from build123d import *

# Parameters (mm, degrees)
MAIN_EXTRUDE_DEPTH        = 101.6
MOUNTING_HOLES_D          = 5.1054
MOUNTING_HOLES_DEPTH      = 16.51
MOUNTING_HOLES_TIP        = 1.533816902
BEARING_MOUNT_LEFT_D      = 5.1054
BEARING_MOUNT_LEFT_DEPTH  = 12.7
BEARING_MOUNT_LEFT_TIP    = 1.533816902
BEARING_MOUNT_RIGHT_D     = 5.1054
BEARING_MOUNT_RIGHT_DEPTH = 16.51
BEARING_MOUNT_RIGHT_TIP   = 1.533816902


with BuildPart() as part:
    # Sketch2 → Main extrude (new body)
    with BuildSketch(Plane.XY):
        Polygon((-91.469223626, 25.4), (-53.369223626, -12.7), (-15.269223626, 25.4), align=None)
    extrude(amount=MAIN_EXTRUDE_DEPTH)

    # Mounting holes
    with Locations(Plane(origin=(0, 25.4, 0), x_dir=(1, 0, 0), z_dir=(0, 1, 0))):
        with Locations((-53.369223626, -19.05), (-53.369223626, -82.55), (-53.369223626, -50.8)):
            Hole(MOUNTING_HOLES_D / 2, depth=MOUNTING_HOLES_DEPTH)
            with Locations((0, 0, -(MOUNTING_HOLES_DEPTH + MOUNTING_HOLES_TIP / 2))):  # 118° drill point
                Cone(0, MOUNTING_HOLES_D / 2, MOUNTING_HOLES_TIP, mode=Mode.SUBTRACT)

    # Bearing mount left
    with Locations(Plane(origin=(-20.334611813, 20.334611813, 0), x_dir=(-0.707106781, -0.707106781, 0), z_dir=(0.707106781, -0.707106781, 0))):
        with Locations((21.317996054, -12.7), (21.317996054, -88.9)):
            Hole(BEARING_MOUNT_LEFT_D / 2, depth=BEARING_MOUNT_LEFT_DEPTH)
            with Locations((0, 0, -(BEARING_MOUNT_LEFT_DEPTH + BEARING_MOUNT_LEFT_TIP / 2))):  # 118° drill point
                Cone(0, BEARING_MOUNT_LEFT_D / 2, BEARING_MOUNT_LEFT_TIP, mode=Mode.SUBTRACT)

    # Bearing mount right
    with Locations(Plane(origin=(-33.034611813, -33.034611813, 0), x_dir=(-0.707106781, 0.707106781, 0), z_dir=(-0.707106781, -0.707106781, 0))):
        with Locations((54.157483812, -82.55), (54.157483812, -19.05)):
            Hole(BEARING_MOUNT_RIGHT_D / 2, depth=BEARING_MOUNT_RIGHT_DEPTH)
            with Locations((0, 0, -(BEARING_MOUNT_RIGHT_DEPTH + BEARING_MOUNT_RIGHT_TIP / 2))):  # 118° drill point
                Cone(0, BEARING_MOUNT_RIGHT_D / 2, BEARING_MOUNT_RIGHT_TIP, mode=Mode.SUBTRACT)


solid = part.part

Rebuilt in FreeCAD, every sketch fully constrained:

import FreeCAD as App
import Part
import Sketcher

V = App.Vector
Q = App.Units.Quantity


def add_polygon(sketch, points):
    """Adds a closed chain of lines whose ends are joined by coincident constraints."""
    first, n = sketch.GeometryCount, len(points)
    for a, b in zip(points, points[1:] + points[:1]):
        sketch.addGeometry(Part.LineSegment(App.Vector(*a, 0), App.Vector(*b, 0)), False)
    for i in range(n):
        sketch.addConstraint(Sketcher.Constraint("Coincident", first + i, 2, first + (i + 1) % n, 1))

doc = App.newDocument("Part")
body = doc.addObject("PartDesign::Body", "Body")

# Sketch on XY plane
sketch1 = body.newObject("Sketcher::SketchObject", "Sketch")
sketch1.AttachmentSupport = (doc.getObject("XY_Plane"), [""])
sketch1.MapMode = "FlatFace"
add_polygon(sketch1, [(-91, 25), (-53, -13), (-15, 25)])  # lines 0-2
sketch1.addConstraint([
    Sketcher.Constraint("Horizontal", 2),
    Sketcher.Constraint("Perpendicular", 0, 1),
    Sketcher.Constraint("Equal", 0, 1),
    Sketcher.Constraint("DistanceX", 2, 2, 2, 1, Q("3 in")),
    Sketcher.Constraint("DistanceY", -1, 1, 1, 2, Q("1 in")),
    Sketcher.Constraint("DistanceX", 0, 2, -1, 1, 53.369224),
])
pad1 = body.newObject("PartDesign::Pad", "Pad")
pad1.Profile = sketch1
pad1.Length = Q("4 in")

# Sketch on XZ plane
sketch2 = body.newObject("Sketcher::SketchObject", "Sketch001")
sketch2.AttachmentSupport = (doc.getObject("XZ_Plane"), [""])
sketch2.MapMode = "FlatFace"
sketch2.AttachmentOffset = App.Placement(V(0, 0, -1 * 25.4), App.Rotation())
sketch2.addGeometry([
    Part.Circle(V(-53.4, 19.1, 0), V(0, 0, 1), 2.6),
    Part.Circle(V(-53.4, 82.5, 0), V(0, 0, 1), 2.6),
    Part.Circle(V(-53.4, 50.8, 0), V(0, 0, 1), 2.6),
], False)
sketch2.addConstraint([
    Sketcher.Constraint("Equal", 0, 1),
    Sketcher.Constraint("Equal", 1, 2),
    Sketcher.Constraint("Vertical", 0, 3, 1, 3),
    Sketcher.Constraint("Vertical", 1, 3, 2, 3),
    Sketcher.Constraint("Diameter", 0, Q("0.201 in")),
    Sketcher.Constraint("DistanceY", -1, 1, 2, 3, Q("2 in")),
    Sketcher.Constraint("DistanceY", 0, 3, 1, 3, Q("2.5 in")),
    Sketcher.Constraint("DistanceY", -1, 1, 0, 3, Q("0.75 in")),
    Sketcher.Constraint("DistanceX", 0, 3, -1, 1, 53.369224),
])
doc.recompute()
hole = body.newObject("PartDesign::Hole", "Hole")
hole.Profile = sketch2
hole.ThreadType = "None"
hole.Diameter = Q("0.201 in")
hole.DepthType = "Dimension"
hole.Depth = Q("0.65 in")
hole.DrillPoint = "Angled"
hole.DrillPointAngle = 118
hole.Reversed = True

# Sketch on an angled plane
sketch3 = body.newObject("Sketcher::SketchObject", "Sketch002")
sketch3.Placement = App.Placement(V(-20.334612, 20.334612, 0), App.Rotation(V(-0.707106781, -0.707106781, 0), V(0, 0, -0.999999999), V(0.707106781, -0.707106781, 0), "ZXY"))
sketch3.addGeometry([
    Part.Circle(V(21.3, -12.7, 0), V(0, 0, 1), 2.6),
    Part.Circle(V(21.3, -88.9, 0), V(0, 0, 1), 2.6),
], False)
sketch3.addConstraint([
    Sketcher.Constraint("Equal", 0, 1),
    Sketcher.Constraint("Vertical", 0, 3, 1, 3),
    Sketcher.Constraint("Diameter", 0, Q("0.201 in")),
    Sketcher.Constraint("DistanceY", 1, 3, 0, 3, Q("3 in")),
    Sketcher.Constraint("DistanceY", 0, 3, -1, 1, Q("0.5 in")),
    Sketcher.Constraint("DistanceX", -1, 1, 0, 3, 21.317996),
])
doc.recompute()
hole2 = body.newObject("PartDesign::Hole", "Hole001")
hole2.Profile = sketch3
hole2.ThreadType = "None"
hole2.Diameter = Q("0.201 in")
hole2.DepthType = "Dimension"
hole2.Depth = Q("0.5 in")
hole2.DrillPoint = "Angled"
hole2.DrillPointAngle = 118

# Sketch on an angled plane
sketch4 = body.newObject("Sketcher::SketchObject", "Sketch003")
sketch4.Placement = App.Placement(V(-33.034612, -33.034612, 0), App.Rotation(V(-0.707106781, 0.707106781, 0), V(0, 0, -0.999999999), V(-0.707106781, -0.707106781, 0), "ZXY"))
sketch4.addGeometry([
    Part.Circle(V(54.2, -82.5, 0), V(0, 0, 1), 2.6),
    Part.Circle(V(54.2, -19, 0), V(0, 0, 1), 2.6),
], False)
sketch4.addConstraint([
    Sketcher.Constraint("Equal", 0, 1),
    Sketcher.Constraint("Vertical", 0, 3, 1, 3),
    Sketcher.Constraint("Diameter", 0, Q("0.201 in")),
    Sketcher.Constraint("DistanceY", 0, 3, 1, 3, Q("2.5 in")),
    Sketcher.Constraint("DistanceY", 0, 3, -1, 1, Q("3.25 in")),
    Sketcher.Constraint("DistanceX", -1, 1, 0, 3, 54.157484),
])
doc.recompute()
hole3 = body.newObject("PartDesign::Hole", "Hole002")
hole3.Profile = sketch4
hole3.ThreadType = "None"
hole3.Diameter = Q("0.201 in")
hole3.DepthType = "Dimension"
hole3.Depth = Q("0.65 in")
hole3.DrillPoint = "Angled"
hole3.DrillPointAngle = 118

doc.recompute()
